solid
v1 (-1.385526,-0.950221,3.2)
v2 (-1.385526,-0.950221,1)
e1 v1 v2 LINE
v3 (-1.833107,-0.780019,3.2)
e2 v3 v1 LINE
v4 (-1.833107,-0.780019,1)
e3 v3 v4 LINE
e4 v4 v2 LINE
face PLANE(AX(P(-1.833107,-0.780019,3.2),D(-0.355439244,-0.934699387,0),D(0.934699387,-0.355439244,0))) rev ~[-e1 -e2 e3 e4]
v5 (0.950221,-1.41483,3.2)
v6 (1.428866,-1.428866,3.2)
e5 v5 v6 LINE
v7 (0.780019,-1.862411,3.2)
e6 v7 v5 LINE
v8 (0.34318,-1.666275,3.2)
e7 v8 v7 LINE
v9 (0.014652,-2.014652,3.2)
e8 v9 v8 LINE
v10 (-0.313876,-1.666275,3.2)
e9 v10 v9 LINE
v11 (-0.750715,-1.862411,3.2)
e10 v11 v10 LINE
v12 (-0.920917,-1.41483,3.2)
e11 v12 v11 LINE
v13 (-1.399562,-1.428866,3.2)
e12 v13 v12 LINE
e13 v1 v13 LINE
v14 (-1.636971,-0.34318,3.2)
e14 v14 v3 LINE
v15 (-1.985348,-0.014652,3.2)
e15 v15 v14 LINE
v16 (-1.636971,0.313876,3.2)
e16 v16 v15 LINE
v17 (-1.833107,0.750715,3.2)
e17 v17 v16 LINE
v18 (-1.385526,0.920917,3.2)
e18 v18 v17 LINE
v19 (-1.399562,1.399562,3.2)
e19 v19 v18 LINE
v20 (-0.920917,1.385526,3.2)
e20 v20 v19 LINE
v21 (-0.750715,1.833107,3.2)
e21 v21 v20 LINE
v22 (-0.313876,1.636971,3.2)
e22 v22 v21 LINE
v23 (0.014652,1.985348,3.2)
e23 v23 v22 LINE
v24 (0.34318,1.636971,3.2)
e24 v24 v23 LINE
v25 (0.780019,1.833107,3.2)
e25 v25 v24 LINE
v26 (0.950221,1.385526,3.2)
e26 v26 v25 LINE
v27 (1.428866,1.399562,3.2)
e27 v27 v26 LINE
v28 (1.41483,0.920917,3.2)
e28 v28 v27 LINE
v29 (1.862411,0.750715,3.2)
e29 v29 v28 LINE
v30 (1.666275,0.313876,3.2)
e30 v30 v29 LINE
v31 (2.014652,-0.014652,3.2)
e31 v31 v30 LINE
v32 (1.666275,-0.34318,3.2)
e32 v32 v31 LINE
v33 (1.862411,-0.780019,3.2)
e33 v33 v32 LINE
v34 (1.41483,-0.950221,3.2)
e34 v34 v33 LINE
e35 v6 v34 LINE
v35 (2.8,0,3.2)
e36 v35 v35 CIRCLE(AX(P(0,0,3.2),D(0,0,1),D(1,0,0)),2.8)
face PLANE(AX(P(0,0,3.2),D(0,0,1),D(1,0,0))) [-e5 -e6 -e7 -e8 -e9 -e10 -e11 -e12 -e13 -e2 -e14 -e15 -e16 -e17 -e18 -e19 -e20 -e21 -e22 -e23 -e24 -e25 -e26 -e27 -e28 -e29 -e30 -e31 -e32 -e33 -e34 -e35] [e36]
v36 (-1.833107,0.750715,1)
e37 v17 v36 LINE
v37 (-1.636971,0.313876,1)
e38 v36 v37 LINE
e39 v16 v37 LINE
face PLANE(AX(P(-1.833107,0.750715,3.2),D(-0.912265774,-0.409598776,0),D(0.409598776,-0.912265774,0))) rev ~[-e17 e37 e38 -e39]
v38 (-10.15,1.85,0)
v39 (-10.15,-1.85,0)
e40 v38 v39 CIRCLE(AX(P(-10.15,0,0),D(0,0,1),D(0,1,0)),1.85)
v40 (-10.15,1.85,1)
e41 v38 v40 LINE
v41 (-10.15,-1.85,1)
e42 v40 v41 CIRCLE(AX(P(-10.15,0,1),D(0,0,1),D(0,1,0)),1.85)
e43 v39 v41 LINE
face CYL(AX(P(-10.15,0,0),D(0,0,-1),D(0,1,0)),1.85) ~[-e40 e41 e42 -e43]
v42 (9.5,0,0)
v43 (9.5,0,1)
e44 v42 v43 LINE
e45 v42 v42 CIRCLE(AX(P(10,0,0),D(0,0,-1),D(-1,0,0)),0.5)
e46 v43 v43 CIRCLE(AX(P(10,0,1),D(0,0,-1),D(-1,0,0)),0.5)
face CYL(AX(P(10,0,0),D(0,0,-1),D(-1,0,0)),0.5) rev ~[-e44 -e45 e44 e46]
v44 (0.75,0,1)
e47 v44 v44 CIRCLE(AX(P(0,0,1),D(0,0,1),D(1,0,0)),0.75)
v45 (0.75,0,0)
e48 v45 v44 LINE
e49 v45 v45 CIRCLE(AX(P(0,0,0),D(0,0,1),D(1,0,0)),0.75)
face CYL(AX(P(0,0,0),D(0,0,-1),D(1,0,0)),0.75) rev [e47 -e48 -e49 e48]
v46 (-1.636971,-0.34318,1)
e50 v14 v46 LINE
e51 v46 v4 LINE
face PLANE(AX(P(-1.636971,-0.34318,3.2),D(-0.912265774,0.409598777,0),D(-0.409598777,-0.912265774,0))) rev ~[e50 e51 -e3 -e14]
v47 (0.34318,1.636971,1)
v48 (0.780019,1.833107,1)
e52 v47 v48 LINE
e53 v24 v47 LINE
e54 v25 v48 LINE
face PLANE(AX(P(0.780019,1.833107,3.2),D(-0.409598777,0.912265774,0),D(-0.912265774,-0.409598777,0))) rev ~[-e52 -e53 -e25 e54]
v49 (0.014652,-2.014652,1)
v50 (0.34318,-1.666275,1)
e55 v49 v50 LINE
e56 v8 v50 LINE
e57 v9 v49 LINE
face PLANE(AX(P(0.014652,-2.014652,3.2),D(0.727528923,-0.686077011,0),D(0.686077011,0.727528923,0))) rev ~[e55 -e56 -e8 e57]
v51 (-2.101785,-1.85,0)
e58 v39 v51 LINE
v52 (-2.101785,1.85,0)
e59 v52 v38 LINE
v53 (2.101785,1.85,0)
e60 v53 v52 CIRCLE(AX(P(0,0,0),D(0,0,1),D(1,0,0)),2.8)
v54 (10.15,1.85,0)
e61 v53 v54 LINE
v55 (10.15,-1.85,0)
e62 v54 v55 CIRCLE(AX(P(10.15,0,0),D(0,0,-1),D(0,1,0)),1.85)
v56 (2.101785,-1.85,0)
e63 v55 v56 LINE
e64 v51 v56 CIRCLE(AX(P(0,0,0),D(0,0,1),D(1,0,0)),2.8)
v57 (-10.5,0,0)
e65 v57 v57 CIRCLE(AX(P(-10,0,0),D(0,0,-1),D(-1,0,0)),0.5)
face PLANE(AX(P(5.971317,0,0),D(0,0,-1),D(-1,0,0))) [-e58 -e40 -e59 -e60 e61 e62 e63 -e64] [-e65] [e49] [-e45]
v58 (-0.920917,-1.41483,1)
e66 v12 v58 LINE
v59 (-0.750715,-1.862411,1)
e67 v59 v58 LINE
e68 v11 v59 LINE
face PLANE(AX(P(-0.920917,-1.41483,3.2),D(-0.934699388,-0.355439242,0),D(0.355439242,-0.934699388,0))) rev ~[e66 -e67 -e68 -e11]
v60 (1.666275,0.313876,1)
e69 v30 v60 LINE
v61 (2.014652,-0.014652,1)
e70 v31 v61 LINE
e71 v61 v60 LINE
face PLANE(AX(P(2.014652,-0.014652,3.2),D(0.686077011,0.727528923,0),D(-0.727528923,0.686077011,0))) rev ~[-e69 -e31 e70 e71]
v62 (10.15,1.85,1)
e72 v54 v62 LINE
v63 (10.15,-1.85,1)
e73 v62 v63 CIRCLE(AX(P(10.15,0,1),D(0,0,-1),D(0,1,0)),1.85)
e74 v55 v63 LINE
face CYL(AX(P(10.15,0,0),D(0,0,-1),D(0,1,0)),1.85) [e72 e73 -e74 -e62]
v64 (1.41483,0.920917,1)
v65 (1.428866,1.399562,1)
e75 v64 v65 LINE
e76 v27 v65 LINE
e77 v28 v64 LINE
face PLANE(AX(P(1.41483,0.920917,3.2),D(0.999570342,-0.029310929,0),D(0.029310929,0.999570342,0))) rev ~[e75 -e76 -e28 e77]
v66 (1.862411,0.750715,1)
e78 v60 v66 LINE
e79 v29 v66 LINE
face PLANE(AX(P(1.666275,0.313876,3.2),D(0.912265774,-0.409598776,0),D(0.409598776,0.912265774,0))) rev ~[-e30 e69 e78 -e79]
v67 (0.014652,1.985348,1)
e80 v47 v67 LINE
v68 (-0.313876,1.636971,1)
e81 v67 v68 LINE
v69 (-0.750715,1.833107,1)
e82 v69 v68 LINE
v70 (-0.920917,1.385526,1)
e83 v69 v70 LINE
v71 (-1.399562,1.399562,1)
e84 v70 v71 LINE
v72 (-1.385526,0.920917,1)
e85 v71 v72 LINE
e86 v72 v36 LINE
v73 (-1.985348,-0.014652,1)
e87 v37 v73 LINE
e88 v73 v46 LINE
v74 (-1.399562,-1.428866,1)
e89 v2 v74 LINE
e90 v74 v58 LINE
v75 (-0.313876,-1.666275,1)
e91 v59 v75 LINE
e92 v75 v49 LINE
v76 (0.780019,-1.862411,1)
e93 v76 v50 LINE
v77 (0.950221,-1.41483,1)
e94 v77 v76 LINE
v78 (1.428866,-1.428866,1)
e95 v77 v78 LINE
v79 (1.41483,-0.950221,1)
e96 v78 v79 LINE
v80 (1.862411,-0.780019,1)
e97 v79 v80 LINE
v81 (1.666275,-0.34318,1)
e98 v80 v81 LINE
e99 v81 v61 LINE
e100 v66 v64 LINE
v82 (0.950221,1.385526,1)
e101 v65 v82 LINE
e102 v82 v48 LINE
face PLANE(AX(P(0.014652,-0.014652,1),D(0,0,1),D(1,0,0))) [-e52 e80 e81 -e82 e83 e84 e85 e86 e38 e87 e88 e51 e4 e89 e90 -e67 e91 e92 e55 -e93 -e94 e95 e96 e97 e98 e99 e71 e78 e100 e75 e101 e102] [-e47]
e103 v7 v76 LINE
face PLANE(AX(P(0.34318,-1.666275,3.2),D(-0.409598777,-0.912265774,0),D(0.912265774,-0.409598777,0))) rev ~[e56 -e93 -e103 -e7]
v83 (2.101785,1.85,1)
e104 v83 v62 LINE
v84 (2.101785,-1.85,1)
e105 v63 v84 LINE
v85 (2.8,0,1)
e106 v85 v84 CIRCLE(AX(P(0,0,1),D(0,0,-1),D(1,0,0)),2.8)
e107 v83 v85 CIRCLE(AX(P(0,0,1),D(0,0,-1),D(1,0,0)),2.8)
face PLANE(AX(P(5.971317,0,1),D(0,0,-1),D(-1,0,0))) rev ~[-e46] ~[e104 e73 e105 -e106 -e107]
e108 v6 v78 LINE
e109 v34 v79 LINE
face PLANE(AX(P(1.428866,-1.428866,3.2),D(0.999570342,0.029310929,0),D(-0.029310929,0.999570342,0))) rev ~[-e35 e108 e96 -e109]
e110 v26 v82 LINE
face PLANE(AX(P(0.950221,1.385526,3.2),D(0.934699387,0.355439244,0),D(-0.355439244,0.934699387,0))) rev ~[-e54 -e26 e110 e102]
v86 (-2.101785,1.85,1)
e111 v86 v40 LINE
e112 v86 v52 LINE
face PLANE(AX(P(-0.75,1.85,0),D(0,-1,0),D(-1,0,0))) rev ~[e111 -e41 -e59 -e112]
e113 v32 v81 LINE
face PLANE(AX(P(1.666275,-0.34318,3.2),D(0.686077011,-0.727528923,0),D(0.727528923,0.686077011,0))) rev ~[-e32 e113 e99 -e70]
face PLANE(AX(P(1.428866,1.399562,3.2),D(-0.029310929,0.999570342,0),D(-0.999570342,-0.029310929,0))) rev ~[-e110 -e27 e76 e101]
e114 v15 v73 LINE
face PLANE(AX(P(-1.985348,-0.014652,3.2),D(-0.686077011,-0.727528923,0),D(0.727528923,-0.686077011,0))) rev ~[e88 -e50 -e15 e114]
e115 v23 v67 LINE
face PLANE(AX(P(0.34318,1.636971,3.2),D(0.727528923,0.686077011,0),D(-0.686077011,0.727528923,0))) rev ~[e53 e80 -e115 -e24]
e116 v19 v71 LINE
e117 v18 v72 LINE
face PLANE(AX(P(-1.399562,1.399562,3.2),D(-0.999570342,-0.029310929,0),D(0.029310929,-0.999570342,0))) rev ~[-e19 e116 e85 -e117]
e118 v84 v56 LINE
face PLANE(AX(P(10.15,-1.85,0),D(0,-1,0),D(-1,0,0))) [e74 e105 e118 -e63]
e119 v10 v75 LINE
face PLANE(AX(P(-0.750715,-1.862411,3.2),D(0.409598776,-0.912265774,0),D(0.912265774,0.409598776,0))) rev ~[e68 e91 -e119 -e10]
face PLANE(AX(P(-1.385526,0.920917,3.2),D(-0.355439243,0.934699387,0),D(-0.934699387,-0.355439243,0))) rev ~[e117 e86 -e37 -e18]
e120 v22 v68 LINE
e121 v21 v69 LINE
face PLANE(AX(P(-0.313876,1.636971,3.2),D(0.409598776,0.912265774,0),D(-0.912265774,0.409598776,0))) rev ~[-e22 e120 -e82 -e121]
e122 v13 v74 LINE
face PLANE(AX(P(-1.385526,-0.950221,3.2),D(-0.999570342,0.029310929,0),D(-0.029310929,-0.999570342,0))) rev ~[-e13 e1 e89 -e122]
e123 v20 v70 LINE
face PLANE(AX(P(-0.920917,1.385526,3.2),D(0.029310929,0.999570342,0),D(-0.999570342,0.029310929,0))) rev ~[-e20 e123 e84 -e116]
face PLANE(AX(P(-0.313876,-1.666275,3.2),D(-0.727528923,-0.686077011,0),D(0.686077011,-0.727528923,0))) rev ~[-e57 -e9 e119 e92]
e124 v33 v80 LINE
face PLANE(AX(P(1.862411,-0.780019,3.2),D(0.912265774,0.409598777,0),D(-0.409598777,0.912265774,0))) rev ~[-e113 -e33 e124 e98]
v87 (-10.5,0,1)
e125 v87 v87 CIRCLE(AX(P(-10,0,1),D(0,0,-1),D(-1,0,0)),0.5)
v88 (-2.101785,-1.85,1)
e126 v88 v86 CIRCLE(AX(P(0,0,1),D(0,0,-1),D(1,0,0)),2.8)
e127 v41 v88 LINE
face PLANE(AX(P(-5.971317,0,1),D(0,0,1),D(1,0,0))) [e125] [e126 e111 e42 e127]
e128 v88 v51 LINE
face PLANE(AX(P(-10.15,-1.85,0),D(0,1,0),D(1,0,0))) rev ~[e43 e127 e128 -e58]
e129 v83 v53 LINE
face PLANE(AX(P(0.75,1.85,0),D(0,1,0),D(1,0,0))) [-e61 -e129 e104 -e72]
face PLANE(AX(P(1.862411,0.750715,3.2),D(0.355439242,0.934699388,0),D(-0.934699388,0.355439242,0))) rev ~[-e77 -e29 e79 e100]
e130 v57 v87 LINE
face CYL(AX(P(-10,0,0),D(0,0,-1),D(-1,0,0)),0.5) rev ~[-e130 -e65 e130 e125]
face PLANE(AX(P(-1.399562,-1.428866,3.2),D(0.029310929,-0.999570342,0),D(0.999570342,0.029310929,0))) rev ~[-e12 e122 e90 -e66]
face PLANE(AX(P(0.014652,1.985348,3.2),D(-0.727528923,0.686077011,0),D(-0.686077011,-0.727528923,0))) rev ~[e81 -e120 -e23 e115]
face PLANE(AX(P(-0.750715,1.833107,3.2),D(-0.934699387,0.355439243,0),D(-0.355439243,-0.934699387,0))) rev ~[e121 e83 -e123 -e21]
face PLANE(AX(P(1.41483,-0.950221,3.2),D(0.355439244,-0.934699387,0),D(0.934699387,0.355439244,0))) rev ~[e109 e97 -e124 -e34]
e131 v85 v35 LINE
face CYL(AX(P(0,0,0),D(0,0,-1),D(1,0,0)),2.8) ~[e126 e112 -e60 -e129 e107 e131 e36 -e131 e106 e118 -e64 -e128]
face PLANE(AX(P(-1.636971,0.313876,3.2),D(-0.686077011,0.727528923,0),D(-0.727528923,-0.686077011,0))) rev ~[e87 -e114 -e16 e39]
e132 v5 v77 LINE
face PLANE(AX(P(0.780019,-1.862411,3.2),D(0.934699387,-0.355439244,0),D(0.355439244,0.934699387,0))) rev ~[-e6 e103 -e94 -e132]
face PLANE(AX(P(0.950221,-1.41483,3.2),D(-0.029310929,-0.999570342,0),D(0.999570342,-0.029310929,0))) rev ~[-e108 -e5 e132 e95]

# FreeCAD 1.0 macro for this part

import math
import FreeCAD as App
import Part
import Sketcher
from FreeCAD import Vector
Q = App.Units.Quantity

doc = App.newDocument("Part")
body = doc.addObject("PartDesign::Body", "Body")

sketch1 = body.newObject("Sketcher::SketchObject", "Sketch")
sketch1.AttachmentSupport = (doc.getObject("XY_Plane"), [""])
sketch1.MapMode = "FlatFace"
sketch1.addGeometry(Part.Circle(Vector(0, 0, 0), Vector(0, 0, 1), 2.8), False)
sketch1.addConstraint([
    Sketcher.Constraint("Coincident", 0, 3, -1, 1),
    Sketcher.Constraint("Diameter", 0, Q("5.6 mm")),
])
pad1 = body.newObject("PartDesign::Pad", "Pad")
pad1.Profile = sketch1
pad1.Length = 3.2

sketch2 = body.newObject("Sketcher::SketchObject", "Sketch001")
sketch2.AttachmentSupport = (doc.getObject("XY_Plane"), [""])
sketch2.MapMode = "FlatFace"
sketch2.AttachmentOffset = App.Placement(Vector(0, 0, 3.2), App.Rotation())
sketch2.addGeometry([
    Part.LineSegment(Vector(0.01, 1.99, 0), Vector(-0.31, 1.64, 0)),
    Part.LineSegment(Vector(-0.31, 1.64, 0), Vector(-0.75, 1.83, 0)),
    Part.LineSegment(Vector(-0.75, 1.83, 0), Vector(-0.92, 1.39, 0)),
    Part.LineSegment(Vector(-0.92, 1.39, 0), Vector(-1.4, 1.4, 0)),
    Part.LineSegment(Vector(-1.4, 1.4, 0), Vector(-1.39, 0.92, 0)),
    Part.LineSegment(Vector(-1.39, 0.92, 0), Vector(-1.83, 0.75, 0)),
    Part.LineSegment(Vector(-1.83, 0.75, 0), Vector(-1.64, 0.31, 0)),
    Part.LineSegment(Vector(-1.64, 0.31, 0), Vector(-1.99, -0.01, 0)),
    Part.LineSegment(Vector(-1.99, -0.01, 0), Vector(-1.64, -0.34, 0)),
    Part.LineSegment(Vector(-1.64, -0.34, 0), Vector(-1.83, -0.78, 0)),
    Part.LineSegment(Vector(-1.83, -0.78, 0), Vector(-1.39, -0.95, 0)),
    Part.LineSegment(Vector(-1.39, -0.95, 0), Vector(-1.4, -1.43, 0)),
    Part.LineSegment(Vector(-1.4, -1.43, 0), Vector(-0.92, -1.41, 0)),
    Part.LineSegment(Vector(-0.92, -1.41, 0), Vector(-0.75, -1.86, 0)),
    Part.LineSegment(Vector(-0.75, -1.86, 0), Vector(-0.31, -1.67, 0)),
    Part.LineSegment(Vector(-0.31, -1.67, 0), Vector(0.01, -2.01, 0)),
    Part.LineSegment(Vector(0.01, -2.01, 0), Vector(0.34, -1.67, 0)),
    Part.LineSegment(Vector(0.34, -1.67, 0), Vector(0.78, -1.86, 0)),
    Part.LineSegment(Vector(0.78, -1.86, 0), Vector(0.95, -1.41, 0)),
    Part.LineSegment(Vector(0.95, -1.41, 0), Vector(1.43, -1.43, 0)),
    Part.LineSegment(Vector(1.43, -1.43, 0), Vector(1.41, -0.95, 0)),
    Part.LineSegment(Vector(1.41, -0.95, 0), Vector(1.86, -0.78, 0)),
    Part.LineSegment(Vector(1.86, -0.78, 0), Vector(1.67, -0.34, 0)),
    Part.LineSegment(Vector(1.67, -0.34, 0), Vector(2.01, -0.01, 0)),
    Part.LineSegment(Vector(2.01, -0.01, 0), Vector(1.67, 0.31, 0)),
    Part.LineSegment(Vector(1.67, 0.31, 0), Vector(1.86, 0.75, 0)),
    Part.LineSegment(Vector(1.86, 0.75, 0), Vector(1.41, 0.92, 0)),
    Part.LineSegment(Vector(1.41, 0.92, 0), Vector(1.43, 1.4, 0)),
    Part.LineSegment(Vector(1.43, 1.4, 0), Vector(0.95, 1.39, 0)),
    Part.LineSegment(Vector(0.95, 1.39, 0), Vector(0.78, 1.83, 0)),
    Part.LineSegment(Vector(0.78, 1.83, 0), Vector(0.34, 1.64, 0)),
    Part.LineSegment(Vector(0.34, 1.64, 0), Vector(0.01, 1.99, 0)),
], False)
sketch2.addConstraint([
    Sketcher.Constraint("Coincident", 0, 2, 1, 1),
    Sketcher.Constraint("Coincident", 1, 2, 2, 1),
    Sketcher.Constraint("Coincident", 2, 2, 3, 1),
    Sketcher.Constraint("Coincident", 3, 2, 4, 1),
    Sketcher.Constraint("Coincident", 4, 2, 5, 1),
    Sketcher.Constraint("Coincident", 5, 2, 6, 1),
    Sketcher.Constraint("Coincident", 6, 2, 7, 1),
    Sketcher.Constraint("Coincident", 7, 2, 8, 1),
    Sketcher.Constraint("Coincident", 8, 2, 9, 1),
    Sketcher.Constraint("Coincident", 9, 2, 10, 1),
    Sketcher.Constraint("Coincident", 10, 2, 11, 1),
    Sketcher.Constraint("Coincident", 11, 2, 12, 1),
    Sketcher.Constraint("Coincident", 12, 2, 13, 1),
    Sketcher.Constraint("Coincident", 13, 2, 14, 1),
    Sketcher.Constraint("Coincident", 14, 2, 15, 1),
    Sketcher.Constraint("Coincident", 15, 2, 16, 1),
    Sketcher.Constraint("Coincident", 16, 2, 17, 1),
    Sketcher.Constraint("Coincident", 17, 2, 18, 1),
    Sketcher.Constraint("Coincident", 18, 2, 19, 1),
    Sketcher.Constraint("Coincident", 19, 2, 20, 1),
    Sketcher.Constraint("Coincident", 20, 2, 21, 1),
    Sketcher.Constraint("Coincident", 21, 2, 22, 1),
    Sketcher.Constraint("Coincident", 22, 2, 23, 1),
    Sketcher.Constraint("Coincident", 23, 2, 24, 1),
    Sketcher.Constraint("Coincident", 24, 2, 25, 1),
    Sketcher.Constraint("Coincident", 25, 2, 26, 1),
    Sketcher.Constraint("Coincident", 26, 2, 27, 1),
    Sketcher.Constraint("Coincident", 27, 2, 28, 1),
    Sketcher.Constraint("Coincident", 28, 2, 29, 1),
    Sketcher.Constraint("Coincident", 29, 2, 30, 1),
    Sketcher.Constraint("Coincident", 30, 2, 31, 1),
    Sketcher.Constraint("Coincident", 31, 2, 0, 1),
    Sketcher.Constraint("Perpendicular", 0, 8),
    Sketcher.Constraint("Perpendicular", 1, 9),
    Sketcher.Constraint("Perpendicular", 2, 10),
    Sketcher.Constraint("Perpendicular", 3, 11),
    Sketcher.Constraint("Perpendicular", 4, 12),
    Sketcher.Constraint("Perpendicular", 5, 13),
    Sketcher.Constraint("Perpendicular", 6, 14),
    Sketcher.Constraint("Perpendicular", 7, 15),
    Sketcher.Constraint("Perpendicular", 8, 16),
    Sketcher.Constraint("Perpendicular", 9, 17),
    Sketcher.Constraint("Perpendicular", 10, 18),
    Sketcher.Constraint("Perpendicular", 11, 19),
    Sketcher.Constraint("Perpendicular", 12, 20),
    Sketcher.Constraint("Perpendicular", 13, 21),
    Sketcher.Constraint("Perpendicular", 14, 22),
    Sketcher.Constraint("Perpendicular", 15, 23),
    Sketcher.Constraint("Perpendicular", 16, 24),
    Sketcher.Constraint("Perpendicular", 17, 25),
    Sketcher.Constraint("Perpendicular", 18, 26),
    Sketcher.Constraint("Perpendicular", 19, 27),
    Sketcher.Constraint("Perpendicular", 20, 28),
    Sketcher.Constraint("Perpendicular", 21, 29),
    Sketcher.Constraint("Perpendicular", 22, 30),
    Sketcher.Constraint("Perpendicular", 23, 31),
    Sketcher.Constraint("Horizontal", 14, 2, 16, 2),
    Sketcher.Constraint("Horizontal", 13, 2, 17, 2),
    Sketcher.Constraint("Horizontal", 12, 2, 18, 2),
    Sketcher.Constraint("Horizontal", 11, 2, 19, 2),
    Sketcher.Constraint("Horizontal", 10, 2, 20, 2),
    Sketcher.Constraint("Horizontal", 9, 2, 21, 2),
    Sketcher.Constraint("Horizontal", 8, 2, 22, 2),
    Sketcher.Constraint("Horizontal", 7, 2, 23, 2),
    Sketcher.Constraint("Horizontal", 6, 2, 24, 2),
    Sketcher.Constraint("Horizontal", 5, 2, 25, 2),
    Sketcher.Constraint("Horizontal", 4, 2, 26, 2),
    Sketcher.Constraint("Horizontal", 3, 2, 27, 2),
    Sketcher.Constraint("Horizontal", 2, 2, 28, 2),
    Sketcher.Constraint("Horizontal", 1, 2, 29, 2),
    Sketcher.Constraint("Horizontal", 0, 2, 30, 2),
    Sketcher.Constraint("Vertical", 6, 2, 8, 2),
    Sketcher.Constraint("Vertical", 5, 2, 9, 2),
    Sketcher.Constraint("Vertical", 4, 2, 10, 2),
    Sketcher.Constraint("Vertical", 3, 2, 11, 2),
    Sketcher.Constraint("Vertical", 2, 2, 12, 2),
    Sketcher.Constraint("Vertical", 1, 2, 13, 2),
    Sketcher.Constraint("Vertical", 0, 2, 14, 2),
    Sketcher.Constraint("Vertical", 22, 2, 24, 2),
    Sketcher.Constraint("Vertical", 21, 2, 25, 2),
    Sketcher.Constraint("Vertical", 20, 2, 26, 2),
    Sketcher.Constraint("Vertical", 19, 2, 27, 2),
    Sketcher.Constraint("Equal", 0, 1),
    Sketcher.Constraint("Equal", 1, 2),
    Sketcher.Constraint("Equal", 2, 3),
    Sketcher.Constraint("Equal", 3, 4),
    Sketcher.Constraint("Equal", 4, 5),
    Sketcher.Constraint("Equal", 5, 6),
    Sketcher.Constraint("Equal", 6, 7),
    Sketcher.Constraint("Distance", 0, Q("0.47885 mm")),
    Sketcher.Constraint("DistanceY", -1, 1, 0, 2, Q("1.636971 mm")),
    Sketcher.Constraint("DistanceX", 3, 2, -1, 1, Q("1.399562 mm")),
    Sketcher.Constraint("DistanceY", -1, 1, 3, 2, Q("1.399562 mm")),
    Sketcher.Constraint("DistanceX", 7, 2, -1, 1, Q("1.985348 mm")),
    Sketcher.Constraint("DistanceY", 7, 2, -1, 1, Q("0.014652 mm")),
    Sketcher.Constraint("DistanceY", 9, 2, -1, 1, Q("0.780019 mm")),
])
pocket1 = body.newObject("PartDesign::Pocket", "Pocket")
pocket1.Profile = sketch2
pocket1.Length = 2.2

sketch3 = body.newObject("Sketcher::SketchObject", "Sketch002")
sketch3.AttachmentSupport = (doc.getObject("XY_Plane"), [""])
sketch3.MapMode = "FlatFace"
sketch3.addGeometry(Part.Circle(Vector(0, 0, 0), Vector(0, 0, 1), 0.8), False)
sketch3.addConstraint([
    Sketcher.Constraint("Coincident", 0, 3, -1, 1),
    Sketcher.Constraint("Diameter", 0, Q("1.5 mm")),
])
pocket2 = body.newObject("PartDesign::Pocket", "Pocket001")
pocket2.Profile = sketch3
pocket2.Length = 1
pocket2.Reversed = True

sketch4 = body.newObject("Sketcher::SketchObject", "Sketch003")
sketch4.AttachmentSupport = (doc.getObject("XY_Plane"), [""])
sketch4.MapMode = "FlatFace"
sketch4.addGeometry([
    Part.ArcOfCircle(Part.Circle(Vector(10.2, 0, 0), Vector(0, 0, 1), 1.9), math.radians(-90), math.radians(90)),
    Part.LineSegment(Vector(10.2, 1.9, 0), Vector(0.8, 1.9, 0)),
    Part.LineSegment(Vector(0.8, 1.9, 0), Vector(0.8, -1.9, 0)),
    Part.LineSegment(Vector(0.8, -1.9, 0), Vector(10.2, -1.9, 0)),
    Part.LineSegment(Vector(-0.8, 1.9, 0), Vector(-10.2, 1.9, 0)),
    Part.ArcOfCircle(Part.Circle(Vector(-10.2, 0, 0), Vector(0, 0, 1), 1.9), math.radians(90), math.radians(270)),
    Part.LineSegment(Vector(-10.2, -1.9, 0), Vector(-0.8, -1.9, 0)),
    Part.LineSegment(Vector(-0.8, -1.9, 0), Vector(-0.8, 1.9, 0)),
], False)
sketch4.addConstraint([
    Sketcher.Constraint("Tangent", 0, 2, 1, 1),
    Sketcher.Constraint("Coincident", 1, 2, 2, 1),
    Sketcher.Constraint("Coincident", 2, 2, 3, 1),
    Sketcher.Constraint("Tangent", 3, 2, 0, 1),
    Sketcher.Constraint("Tangent", 4, 2, 5, 1),
    Sketcher.Constraint("Tangent", 5, 2, 6, 1),
    Sketcher.Constraint("Coincident", 6, 2, 7, 1),
    Sketcher.Constraint("Coincident", 7, 2, 4, 1),
    Sketcher.Constraint("Horizontal", 1),
    Sketcher.Constraint("Vertical", 2),
    Sketcher.Constraint("Horizontal", 3),
    Sketcher.Constraint("Horizontal", 4),
    Sketcher.Constraint("Horizontal", 6),
    Sketcher.Constraint("Vertical", 7),
    Sketcher.Constraint("Equal", 0, 5),
    Sketcher.Constraint("Symmetric", 0, 3, 5, 3, -1, 1),
    Sketcher.Constraint("Symmetric", 2, 2, 6, 2, -2),
    Sketcher.Constraint("Radius", 0, Q("1.85 mm")),
    Sketcher.Constraint("DistanceX", 1, 2, 1, 1, Q("9.4 mm")),
    Sketcher.Constraint("DistanceX", 5, 3, 0, 3, Q("20.3 mm")),
])
pad2 = body.newObject("PartDesign::Pad", "Pad001")
pad2.Profile = sketch4
pad2.Length = 1

sketch5 = body.newObject("Sketcher::SketchObject", "Sketch004")
sketch5.AttachmentSupport = (doc.getObject("XY_Plane"), [""])
sketch5.MapMode = "FlatFace"
sketch5.addGeometry(Part.Circle(Vector(-10, 0, 0), Vector(0, 0, 1), 0.5), False)
sketch5.addConstraint([
    Sketcher.Constraint("PointOnObject", 0, 3, -1),
    Sketcher.Constraint("Diameter", 0, Q("1 mm")),
    Sketcher.Constraint("DistanceX", 0, 3, -1, 1, Q("10 mm")),
])
pocket3 = body.newObject("PartDesign::Pocket", "Pocket002")
pocket3.Profile = sketch5
pocket3.Type = "UpToFirst"
pocket3.Reversed = True

sketch6 = body.newObject("Sketcher::SketchObject", "Sketch005")
sketch6.AttachmentSupport = (doc.getObject("XY_Plane"), [""])
sketch6.MapMode = "FlatFace"
sketch6.addGeometry(Part.Circle(Vector(10, 0, 0), Vector(0, 0, 1), 0.5), False)
sketch6.addConstraint([
    Sketcher.Constraint("PointOnObject", 0, 3, -1),
    Sketcher.Constraint("Diameter", 0, Q("1 mm")),
    Sketcher.Constraint("DistanceX", -1, 1, 0, 3, Q("10 mm")),
])
pocket4 = body.newObject("PartDesign::Pocket", "Pocket003")
pocket4.Profile = sketch6
pocket4.Type = "UpToFirst"
pocket4.Reversed = True

doc.recompute()
